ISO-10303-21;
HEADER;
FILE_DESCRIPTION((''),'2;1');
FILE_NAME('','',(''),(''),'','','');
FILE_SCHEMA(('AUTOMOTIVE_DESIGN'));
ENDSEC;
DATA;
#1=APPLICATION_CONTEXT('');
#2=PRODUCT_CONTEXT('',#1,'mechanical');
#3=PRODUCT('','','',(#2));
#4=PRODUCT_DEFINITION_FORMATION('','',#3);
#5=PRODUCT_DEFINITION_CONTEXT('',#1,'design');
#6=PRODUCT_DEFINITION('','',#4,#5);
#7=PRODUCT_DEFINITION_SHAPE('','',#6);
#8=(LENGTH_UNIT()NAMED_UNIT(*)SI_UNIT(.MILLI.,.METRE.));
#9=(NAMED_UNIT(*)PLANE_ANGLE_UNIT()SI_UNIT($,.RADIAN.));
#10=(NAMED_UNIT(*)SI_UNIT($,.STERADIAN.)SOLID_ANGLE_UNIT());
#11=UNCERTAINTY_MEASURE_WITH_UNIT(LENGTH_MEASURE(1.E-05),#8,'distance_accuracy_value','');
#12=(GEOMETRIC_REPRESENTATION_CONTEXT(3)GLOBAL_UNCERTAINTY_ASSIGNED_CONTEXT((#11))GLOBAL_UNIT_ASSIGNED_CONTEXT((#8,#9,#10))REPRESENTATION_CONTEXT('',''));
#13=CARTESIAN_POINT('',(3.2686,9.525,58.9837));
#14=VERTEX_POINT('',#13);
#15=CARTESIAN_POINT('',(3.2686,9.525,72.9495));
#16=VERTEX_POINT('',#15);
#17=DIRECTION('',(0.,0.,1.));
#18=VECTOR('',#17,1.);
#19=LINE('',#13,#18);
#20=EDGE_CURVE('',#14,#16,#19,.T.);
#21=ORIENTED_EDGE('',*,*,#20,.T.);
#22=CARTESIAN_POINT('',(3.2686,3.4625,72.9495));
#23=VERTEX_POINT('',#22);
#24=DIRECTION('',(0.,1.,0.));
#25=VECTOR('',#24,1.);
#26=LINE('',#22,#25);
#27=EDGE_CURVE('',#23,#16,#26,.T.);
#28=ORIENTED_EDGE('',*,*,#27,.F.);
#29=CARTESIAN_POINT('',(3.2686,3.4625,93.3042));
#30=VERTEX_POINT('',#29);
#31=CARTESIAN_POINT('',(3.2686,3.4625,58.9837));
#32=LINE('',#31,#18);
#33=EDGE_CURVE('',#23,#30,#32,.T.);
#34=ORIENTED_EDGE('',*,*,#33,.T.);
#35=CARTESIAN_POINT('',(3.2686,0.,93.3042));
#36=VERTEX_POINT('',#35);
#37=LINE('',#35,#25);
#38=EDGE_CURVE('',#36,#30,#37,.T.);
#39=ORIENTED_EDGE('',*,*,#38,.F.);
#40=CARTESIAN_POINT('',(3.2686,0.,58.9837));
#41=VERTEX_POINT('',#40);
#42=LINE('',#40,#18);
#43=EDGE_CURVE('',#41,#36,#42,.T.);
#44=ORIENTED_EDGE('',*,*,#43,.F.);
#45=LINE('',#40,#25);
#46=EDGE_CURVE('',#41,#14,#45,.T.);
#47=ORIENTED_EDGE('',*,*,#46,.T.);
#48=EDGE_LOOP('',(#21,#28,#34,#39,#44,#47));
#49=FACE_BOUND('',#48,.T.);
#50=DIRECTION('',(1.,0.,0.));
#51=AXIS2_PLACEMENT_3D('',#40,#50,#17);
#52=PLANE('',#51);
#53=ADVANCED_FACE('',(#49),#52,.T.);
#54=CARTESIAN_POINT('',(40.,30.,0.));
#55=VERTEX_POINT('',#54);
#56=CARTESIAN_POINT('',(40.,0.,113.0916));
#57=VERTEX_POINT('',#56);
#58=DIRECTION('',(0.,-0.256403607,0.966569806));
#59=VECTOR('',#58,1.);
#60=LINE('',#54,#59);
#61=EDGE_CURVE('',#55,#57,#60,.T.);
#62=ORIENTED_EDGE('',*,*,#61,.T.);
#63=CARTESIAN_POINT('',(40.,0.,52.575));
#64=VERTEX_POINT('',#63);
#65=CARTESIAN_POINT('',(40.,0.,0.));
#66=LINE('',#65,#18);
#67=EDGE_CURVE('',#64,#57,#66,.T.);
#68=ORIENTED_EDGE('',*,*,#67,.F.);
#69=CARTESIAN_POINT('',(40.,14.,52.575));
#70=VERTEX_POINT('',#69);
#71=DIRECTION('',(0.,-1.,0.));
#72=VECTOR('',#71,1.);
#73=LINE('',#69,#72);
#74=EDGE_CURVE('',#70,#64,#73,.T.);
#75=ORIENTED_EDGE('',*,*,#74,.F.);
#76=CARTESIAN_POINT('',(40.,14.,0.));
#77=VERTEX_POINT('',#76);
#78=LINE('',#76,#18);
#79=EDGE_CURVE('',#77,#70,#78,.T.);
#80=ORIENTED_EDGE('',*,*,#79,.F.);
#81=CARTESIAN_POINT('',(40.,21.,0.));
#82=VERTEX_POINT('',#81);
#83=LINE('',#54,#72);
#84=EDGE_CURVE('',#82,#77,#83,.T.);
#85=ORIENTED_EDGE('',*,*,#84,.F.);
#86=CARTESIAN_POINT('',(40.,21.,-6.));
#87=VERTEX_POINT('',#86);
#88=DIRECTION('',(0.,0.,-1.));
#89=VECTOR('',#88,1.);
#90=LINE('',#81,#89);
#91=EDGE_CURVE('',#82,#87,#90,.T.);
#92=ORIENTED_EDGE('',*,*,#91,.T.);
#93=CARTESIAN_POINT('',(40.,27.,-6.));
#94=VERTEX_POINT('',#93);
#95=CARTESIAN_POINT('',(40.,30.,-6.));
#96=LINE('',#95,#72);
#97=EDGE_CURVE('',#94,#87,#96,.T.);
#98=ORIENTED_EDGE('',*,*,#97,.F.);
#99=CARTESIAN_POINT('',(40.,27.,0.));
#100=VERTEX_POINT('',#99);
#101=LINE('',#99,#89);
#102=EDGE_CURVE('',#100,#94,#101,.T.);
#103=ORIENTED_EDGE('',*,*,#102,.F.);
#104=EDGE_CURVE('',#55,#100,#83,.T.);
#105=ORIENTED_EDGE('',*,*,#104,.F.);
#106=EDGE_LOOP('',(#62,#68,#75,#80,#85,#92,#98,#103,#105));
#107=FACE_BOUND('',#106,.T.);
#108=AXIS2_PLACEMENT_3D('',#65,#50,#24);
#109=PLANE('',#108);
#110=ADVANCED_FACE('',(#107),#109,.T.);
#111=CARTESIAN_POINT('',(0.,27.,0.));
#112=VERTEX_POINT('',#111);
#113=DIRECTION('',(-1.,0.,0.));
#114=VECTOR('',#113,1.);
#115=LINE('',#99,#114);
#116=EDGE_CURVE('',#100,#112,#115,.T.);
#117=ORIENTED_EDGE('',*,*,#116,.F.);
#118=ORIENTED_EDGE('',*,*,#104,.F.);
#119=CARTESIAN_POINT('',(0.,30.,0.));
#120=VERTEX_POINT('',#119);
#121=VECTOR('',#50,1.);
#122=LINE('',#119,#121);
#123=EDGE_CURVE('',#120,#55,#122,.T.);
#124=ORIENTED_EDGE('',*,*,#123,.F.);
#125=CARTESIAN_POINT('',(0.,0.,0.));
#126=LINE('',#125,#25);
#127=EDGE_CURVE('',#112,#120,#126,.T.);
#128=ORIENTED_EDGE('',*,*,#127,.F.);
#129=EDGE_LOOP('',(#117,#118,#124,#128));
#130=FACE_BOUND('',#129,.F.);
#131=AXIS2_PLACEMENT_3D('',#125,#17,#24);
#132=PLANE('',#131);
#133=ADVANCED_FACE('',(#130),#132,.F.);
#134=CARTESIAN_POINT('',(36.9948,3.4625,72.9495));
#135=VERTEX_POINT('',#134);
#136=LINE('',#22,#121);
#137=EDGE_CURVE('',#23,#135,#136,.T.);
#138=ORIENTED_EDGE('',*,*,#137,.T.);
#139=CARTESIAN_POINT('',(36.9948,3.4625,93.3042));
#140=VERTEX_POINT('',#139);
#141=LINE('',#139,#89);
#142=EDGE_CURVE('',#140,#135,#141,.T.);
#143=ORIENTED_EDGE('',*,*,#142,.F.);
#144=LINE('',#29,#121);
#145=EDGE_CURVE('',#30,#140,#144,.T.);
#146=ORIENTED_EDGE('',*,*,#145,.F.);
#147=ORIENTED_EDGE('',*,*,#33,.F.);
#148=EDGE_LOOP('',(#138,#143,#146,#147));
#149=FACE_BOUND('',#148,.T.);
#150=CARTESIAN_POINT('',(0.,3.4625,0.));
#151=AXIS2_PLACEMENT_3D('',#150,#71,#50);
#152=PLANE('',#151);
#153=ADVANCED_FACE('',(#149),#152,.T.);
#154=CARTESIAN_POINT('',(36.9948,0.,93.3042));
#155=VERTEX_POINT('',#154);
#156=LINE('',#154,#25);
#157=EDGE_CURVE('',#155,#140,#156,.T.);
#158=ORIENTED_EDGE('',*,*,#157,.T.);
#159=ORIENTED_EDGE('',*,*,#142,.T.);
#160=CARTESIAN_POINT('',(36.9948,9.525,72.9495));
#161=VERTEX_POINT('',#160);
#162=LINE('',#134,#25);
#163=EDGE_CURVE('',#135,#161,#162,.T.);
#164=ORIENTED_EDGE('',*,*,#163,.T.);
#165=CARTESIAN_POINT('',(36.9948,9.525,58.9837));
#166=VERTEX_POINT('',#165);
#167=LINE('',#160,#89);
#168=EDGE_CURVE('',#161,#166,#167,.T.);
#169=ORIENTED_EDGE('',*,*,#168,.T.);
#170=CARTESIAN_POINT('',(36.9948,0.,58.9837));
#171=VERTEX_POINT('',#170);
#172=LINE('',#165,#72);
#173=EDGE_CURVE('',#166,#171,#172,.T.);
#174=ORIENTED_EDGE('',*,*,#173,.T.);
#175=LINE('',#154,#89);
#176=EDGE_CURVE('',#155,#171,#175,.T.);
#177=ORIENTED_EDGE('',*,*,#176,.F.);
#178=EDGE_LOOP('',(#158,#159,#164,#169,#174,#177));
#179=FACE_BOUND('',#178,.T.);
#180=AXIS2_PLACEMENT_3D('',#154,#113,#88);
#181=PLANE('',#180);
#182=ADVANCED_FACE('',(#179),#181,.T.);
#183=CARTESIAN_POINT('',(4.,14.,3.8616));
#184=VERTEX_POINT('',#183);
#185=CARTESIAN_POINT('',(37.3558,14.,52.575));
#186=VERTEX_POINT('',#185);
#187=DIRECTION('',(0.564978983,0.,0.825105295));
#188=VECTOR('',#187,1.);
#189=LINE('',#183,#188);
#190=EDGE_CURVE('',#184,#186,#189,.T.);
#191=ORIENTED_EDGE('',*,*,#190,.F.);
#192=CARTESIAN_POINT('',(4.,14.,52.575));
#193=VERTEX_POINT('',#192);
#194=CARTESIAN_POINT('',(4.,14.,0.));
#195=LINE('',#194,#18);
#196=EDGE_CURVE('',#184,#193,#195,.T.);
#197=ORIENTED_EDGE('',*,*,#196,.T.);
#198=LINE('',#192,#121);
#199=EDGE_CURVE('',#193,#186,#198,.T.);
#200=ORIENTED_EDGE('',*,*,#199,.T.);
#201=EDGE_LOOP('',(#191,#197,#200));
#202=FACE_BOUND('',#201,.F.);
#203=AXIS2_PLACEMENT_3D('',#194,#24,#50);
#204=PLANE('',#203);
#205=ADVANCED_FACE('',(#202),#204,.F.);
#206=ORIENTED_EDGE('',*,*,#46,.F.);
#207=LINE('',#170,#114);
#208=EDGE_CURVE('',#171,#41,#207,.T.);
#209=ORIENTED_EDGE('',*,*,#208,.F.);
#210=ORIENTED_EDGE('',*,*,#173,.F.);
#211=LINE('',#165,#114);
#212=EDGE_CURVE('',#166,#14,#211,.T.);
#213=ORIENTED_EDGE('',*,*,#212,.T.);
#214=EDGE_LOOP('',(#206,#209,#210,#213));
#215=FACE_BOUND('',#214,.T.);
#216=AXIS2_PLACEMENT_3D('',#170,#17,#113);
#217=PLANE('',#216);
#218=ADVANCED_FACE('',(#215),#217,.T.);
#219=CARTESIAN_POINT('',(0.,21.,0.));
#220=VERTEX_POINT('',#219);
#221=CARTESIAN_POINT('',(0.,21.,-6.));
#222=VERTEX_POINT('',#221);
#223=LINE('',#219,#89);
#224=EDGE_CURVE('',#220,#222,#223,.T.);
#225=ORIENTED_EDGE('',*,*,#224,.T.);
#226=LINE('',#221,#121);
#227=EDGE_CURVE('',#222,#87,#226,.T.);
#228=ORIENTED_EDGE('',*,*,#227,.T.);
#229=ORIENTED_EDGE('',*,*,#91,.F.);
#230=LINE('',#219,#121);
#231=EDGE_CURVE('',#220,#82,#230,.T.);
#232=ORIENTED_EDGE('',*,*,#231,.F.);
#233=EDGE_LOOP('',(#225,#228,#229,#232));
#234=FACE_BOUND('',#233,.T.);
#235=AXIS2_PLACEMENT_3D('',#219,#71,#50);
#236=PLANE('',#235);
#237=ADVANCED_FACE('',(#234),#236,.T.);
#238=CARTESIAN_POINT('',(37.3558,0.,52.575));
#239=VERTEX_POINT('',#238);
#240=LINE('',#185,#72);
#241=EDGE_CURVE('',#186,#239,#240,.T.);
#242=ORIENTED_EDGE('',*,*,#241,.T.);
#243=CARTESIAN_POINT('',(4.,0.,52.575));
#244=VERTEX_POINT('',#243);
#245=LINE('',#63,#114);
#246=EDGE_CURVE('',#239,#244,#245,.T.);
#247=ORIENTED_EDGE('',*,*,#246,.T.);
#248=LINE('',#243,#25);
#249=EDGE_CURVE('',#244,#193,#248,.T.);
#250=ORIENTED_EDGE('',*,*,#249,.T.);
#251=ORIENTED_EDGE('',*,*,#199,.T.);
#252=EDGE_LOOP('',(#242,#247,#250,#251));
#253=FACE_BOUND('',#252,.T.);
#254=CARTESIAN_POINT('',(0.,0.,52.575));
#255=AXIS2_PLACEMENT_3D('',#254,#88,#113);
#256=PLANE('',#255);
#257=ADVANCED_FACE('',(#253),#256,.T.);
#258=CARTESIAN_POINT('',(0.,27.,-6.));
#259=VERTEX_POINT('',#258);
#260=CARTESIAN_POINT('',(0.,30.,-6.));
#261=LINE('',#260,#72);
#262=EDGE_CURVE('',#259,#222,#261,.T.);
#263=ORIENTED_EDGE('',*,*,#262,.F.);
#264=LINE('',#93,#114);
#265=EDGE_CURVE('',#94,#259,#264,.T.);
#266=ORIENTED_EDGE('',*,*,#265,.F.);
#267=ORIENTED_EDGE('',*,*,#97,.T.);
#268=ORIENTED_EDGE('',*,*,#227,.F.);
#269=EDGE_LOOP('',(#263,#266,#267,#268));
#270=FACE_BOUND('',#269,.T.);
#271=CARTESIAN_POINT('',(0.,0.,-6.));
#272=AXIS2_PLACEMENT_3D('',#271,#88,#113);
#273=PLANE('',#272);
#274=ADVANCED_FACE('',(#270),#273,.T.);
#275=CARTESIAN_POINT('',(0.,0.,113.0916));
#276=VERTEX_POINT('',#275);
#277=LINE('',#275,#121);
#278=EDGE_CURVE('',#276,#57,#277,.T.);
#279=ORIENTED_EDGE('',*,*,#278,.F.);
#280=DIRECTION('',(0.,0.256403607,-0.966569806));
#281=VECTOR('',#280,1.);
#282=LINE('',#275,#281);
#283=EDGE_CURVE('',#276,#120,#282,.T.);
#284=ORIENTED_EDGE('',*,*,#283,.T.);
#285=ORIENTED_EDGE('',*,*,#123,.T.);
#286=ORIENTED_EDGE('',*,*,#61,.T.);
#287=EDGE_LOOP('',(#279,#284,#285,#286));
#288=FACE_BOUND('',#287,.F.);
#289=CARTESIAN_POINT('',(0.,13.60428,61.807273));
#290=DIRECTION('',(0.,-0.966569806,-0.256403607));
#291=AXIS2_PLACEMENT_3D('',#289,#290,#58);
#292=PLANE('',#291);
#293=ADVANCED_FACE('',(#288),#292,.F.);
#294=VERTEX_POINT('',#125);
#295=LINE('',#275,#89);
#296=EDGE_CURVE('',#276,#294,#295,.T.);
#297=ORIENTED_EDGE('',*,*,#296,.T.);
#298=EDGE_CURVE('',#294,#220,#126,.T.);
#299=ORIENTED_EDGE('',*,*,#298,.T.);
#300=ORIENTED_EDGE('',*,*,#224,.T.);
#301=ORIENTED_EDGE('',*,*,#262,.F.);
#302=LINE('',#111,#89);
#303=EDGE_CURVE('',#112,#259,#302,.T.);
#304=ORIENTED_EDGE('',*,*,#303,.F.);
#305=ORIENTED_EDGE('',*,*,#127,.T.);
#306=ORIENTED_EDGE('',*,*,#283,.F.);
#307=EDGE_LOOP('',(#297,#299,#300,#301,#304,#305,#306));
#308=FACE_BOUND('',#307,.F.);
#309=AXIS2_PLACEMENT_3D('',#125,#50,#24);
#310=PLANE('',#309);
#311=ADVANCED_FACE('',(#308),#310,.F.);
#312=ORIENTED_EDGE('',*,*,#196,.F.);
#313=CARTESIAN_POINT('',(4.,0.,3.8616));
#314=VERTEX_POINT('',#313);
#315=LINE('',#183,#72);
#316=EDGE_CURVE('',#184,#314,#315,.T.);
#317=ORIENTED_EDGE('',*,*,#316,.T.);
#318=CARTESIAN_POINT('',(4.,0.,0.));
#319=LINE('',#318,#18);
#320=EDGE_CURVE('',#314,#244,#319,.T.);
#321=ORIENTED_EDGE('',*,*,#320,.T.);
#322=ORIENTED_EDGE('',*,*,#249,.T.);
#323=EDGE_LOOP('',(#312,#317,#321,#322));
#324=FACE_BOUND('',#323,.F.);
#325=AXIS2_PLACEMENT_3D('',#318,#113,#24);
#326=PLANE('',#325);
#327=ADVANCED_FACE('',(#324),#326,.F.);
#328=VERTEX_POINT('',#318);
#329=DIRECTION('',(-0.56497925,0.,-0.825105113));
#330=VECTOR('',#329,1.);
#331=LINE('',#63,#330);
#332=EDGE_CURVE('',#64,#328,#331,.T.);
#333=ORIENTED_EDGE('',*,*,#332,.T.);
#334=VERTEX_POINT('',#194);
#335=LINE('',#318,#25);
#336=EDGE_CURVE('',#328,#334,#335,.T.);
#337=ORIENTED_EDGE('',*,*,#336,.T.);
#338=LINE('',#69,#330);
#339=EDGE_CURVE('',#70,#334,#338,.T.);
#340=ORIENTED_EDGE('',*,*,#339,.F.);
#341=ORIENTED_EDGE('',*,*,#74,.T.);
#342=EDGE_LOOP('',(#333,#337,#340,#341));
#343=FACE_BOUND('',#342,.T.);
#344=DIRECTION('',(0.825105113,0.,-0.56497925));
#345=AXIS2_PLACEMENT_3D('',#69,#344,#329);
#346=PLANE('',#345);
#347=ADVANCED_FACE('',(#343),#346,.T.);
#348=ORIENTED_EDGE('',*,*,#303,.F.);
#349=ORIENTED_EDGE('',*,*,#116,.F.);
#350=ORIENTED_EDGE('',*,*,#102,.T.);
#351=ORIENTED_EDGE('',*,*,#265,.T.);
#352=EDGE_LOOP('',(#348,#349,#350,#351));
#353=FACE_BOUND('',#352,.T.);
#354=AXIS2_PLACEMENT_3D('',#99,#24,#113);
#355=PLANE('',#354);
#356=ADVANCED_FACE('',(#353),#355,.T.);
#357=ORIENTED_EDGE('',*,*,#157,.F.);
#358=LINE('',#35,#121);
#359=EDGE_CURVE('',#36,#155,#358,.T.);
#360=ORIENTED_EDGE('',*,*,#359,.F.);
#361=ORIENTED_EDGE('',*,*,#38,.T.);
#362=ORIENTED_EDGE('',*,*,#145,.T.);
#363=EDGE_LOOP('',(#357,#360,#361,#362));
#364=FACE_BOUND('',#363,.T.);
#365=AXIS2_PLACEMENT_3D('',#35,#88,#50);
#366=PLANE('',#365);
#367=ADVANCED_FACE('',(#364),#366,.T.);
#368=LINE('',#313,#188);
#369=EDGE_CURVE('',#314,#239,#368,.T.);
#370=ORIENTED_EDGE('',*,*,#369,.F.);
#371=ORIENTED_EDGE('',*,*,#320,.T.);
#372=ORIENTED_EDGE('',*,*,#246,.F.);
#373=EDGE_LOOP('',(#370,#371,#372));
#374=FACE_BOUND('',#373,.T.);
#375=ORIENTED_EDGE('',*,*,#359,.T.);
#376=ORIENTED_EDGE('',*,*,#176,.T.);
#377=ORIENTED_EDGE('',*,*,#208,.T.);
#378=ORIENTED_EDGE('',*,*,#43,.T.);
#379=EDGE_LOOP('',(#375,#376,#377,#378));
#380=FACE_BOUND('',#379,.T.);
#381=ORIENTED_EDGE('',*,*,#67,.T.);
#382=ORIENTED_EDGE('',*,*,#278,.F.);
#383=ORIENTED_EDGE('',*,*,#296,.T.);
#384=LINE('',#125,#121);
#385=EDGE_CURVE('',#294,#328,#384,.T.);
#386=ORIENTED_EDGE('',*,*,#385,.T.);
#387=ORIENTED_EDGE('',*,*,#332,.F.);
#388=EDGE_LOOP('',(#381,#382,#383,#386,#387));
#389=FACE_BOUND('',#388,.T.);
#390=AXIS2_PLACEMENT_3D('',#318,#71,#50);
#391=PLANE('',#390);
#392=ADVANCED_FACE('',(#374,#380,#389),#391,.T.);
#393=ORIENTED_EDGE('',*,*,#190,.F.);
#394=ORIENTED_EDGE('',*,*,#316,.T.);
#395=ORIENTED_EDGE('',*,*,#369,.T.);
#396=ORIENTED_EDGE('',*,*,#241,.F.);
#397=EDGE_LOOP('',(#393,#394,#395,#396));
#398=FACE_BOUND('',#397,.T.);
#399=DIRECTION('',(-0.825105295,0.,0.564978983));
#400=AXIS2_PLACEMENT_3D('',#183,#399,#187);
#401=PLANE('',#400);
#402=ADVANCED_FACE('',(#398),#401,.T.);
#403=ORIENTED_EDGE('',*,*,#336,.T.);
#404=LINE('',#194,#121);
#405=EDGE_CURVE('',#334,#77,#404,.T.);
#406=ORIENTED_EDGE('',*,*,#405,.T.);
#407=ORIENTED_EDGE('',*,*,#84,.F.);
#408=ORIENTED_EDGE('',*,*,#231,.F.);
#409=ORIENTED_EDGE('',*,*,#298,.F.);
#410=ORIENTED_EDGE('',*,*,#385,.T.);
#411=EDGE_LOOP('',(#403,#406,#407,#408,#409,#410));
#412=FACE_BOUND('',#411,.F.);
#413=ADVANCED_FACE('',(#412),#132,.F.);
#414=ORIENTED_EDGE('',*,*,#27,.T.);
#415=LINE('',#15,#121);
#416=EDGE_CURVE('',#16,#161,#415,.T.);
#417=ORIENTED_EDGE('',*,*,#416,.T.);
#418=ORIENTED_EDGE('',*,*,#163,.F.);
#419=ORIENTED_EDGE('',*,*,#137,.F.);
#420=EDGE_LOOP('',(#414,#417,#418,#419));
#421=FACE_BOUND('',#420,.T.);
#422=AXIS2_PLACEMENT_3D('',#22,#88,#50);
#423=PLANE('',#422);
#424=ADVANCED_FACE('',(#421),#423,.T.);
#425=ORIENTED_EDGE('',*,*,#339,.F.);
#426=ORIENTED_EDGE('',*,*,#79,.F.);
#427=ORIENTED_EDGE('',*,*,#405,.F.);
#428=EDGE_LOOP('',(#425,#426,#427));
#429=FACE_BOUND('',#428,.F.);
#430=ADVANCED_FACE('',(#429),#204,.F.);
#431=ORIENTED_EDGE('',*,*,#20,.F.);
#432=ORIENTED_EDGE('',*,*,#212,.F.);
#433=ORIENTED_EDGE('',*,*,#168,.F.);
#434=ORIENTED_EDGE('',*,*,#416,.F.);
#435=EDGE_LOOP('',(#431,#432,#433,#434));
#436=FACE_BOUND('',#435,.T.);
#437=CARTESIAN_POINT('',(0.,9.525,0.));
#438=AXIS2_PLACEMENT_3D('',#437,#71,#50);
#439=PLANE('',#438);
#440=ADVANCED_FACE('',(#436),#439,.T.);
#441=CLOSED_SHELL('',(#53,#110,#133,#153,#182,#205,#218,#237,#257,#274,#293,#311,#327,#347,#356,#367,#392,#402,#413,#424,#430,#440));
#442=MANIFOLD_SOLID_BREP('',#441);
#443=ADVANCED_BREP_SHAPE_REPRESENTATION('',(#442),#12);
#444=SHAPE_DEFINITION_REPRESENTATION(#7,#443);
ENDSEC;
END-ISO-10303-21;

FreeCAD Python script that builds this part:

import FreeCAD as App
import Part
import Sketcher

V = App.Vector
Q = App.Units.Quantity


def add_polygon(sketch, points):
    """Adds a closed chain of lines whose ends are joined by coincident constraints."""
    first, n = sketch.GeometryCount, len(points)
    for a, b in zip(points, points[1:] + points[:1]):
        sketch.addGeometry(Part.LineSegment(App.Vector(*a, 0), App.Vector(*b, 0)), False)
    for i in range(n):
        sketch.addConstraint(Sketcher.Constraint("Coincident", first + i, 2, first + (i + 1) % n, 1))

doc = App.newDocument("Part")
body = doc.addObject("PartDesign::Body", "Body")

sketch1 = body.newObject("Sketcher::SketchObject", "Sketch")
sketch1.AttachmentSupport = (doc.getObject("YZ_Plane"), [""])
sketch1.MapMode = "FlatFace"
add_polygon(sketch1, [(0, 0), (30, 0), (0, 113.0916)])
sketch1.addConstraint(Sketcher.Constraint("Horizontal", 0))
sketch1.addConstraint(Sketcher.Constraint("Vertical", 2))
sketch1.addConstraint(Sketcher.Constraint("Coincident", 2, 2, -1, 1))
sketch1.addConstraint(Sketcher.Constraint("DistanceX", 0, 1, 0, 2, Q("30 mm")))
sketch1.addConstraint(Sketcher.Constraint("Distance", 1, Q("117.003 mm")))
pad1 = body.newObject("PartDesign::Pad", "Pad")
pad1.Profile = sketch1
pad1.Length = 40

sketch2 = body.newObject("Sketcher::SketchObject", "Sketch001")
sketch2.AttachmentSupport = (doc.getObject("XY_Plane"), [""])
sketch2.MapMode = "FlatFace"
add_polygon(sketch2, [(40, 14), (40, 0), (4, 0), (4, 14)])
sketch2.addConstraint(Sketcher.Constraint("Vertical", 0))
sketch2.addConstraint(Sketcher.Constraint("Horizontal", 1))
sketch2.addConstraint(Sketcher.Constraint("Vertical", 2))
sketch2.addConstraint(Sketcher.Constraint("Horizontal", 3))
sketch2.addConstraint(Sketcher.Constraint("PointOnObject", 0, 2, -1))
sketch2.addConstraint(Sketcher.Constraint("DistanceX", 1, 2, 1, 1, Q("36 mm")))
sketch2.addConstraint(Sketcher.Constraint("DistanceY", 0, 2, 0, 1, Q("14 mm")))
sketch2.addConstraint(Sketcher.Constraint("DistanceX", -1, 1, 0, 2, Q("40 mm")))
pocket1 = body.newObject("PartDesign::Pocket", "Pocket")
pocket1.Profile = sketch2
pocket1.Length = 52.575
pocket1.Reversed = True

sketch3 = body.newObject("Sketcher::SketchObject", "Sketch002")
sketch3.AttachmentSupport = (doc.getObject("XZ_Plane"), [""])
sketch3.MapMode = "FlatFace"
sketch3.AttachmentOffset = App.Placement(V(0, 0, -14), App.Rotation())
add_polygon(sketch3, [(4, 3.8616), (4, 0), (40, 52.575), (37.3558, 52.575)])
sketch3.addConstraint(Sketcher.Constraint("Vertical", 0))
sketch3.addConstraint(Sketcher.Constraint("Horizontal", 2))
sketch3.addConstraint(Sketcher.Constraint("PointOnObject", 0, 2, -1))
sketch3.addConstraint(Sketcher.Constraint("Parallel", 1, 3))
sketch3.addConstraint(Sketcher.Constraint("DistanceX", -1, 1, 0, 2, Q("4 mm")))
sketch3.addConstraint(Sketcher.Constraint("DistanceX", -1, 1, 1, 2, Q("40 mm")))
sketch3.addConstraint(Sketcher.Constraint("Angle", 1, Q("55.5991 deg")))
sketch3.addConstraint(Sketcher.Constraint("Distance", 3, Q("59.039 mm")))
pad2 = body.newObject("PartDesign::Pad", "Pad001")
pad2.Profile = sketch3
pad2.Length = 14

sketch4 = body.newObject("Sketcher::SketchObject", "Sketch003")
sketch4.AttachmentSupport = (doc.getObject("XZ_Plane"), [""])
sketch4.MapMode = "FlatFace"
add_polygon(sketch4, [(3.2686, 58.9837), (36.9948, 58.9837), (36.9948, 93.3042), (3.2686, 93.3042)])
sketch4.addConstraint(Sketcher.Constraint("Horizontal", 0))
sketch4.addConstraint(Sketcher.Constraint("Vertical", 1))
sketch4.addConstraint(Sketcher.Constraint("Horizontal", 2))
sketch4.addConstraint(Sketcher.Constraint("Vertical", 3))
sketch4.addConstraint(Sketcher.Constraint("DistanceX", 0, 1, 0, 2, Q("33.7262 mm")))
sketch4.addConstraint(Sketcher.Constraint("DistanceY", 1, 1, 1, 2, Q("34.3205 mm")))
sketch4.addConstraint(Sketcher.Constraint("DistanceX", -1, 1, 0, 2, Q("36.9948 mm")))
sketch4.addConstraint(Sketcher.Constraint("DistanceY", -1, 1, 0, 2, Q("58.9837 mm")))
pocket2 = body.newObject("PartDesign::Pocket", "Pocket001")
pocket2.Profile = sketch4
pocket2.Length = 3.4625

sketch5 = body.newObject("Sketcher::SketchObject", "Sketch004")
sketch5.AttachmentSupport = (doc.getObject("XZ_Plane"), [""])
sketch5.MapMode = "FlatFace"
sketch5.AttachmentOffset = App.Placement(V(0, 0, -3.4625), App.Rotation())
add_polygon(sketch5, [(3.2686, 58.9837), (36.9948, 58.9837), (36.9948, 72.9495), (3.2686, 72.9495)])
sketch5.addConstraint(Sketcher.Constraint("Horizontal", 0))
sketch5.addConstraint(Sketcher.Constraint("Vertical", 1))
sketch5.addConstraint(Sketcher.Constraint("Horizontal", 2))
sketch5.addConstraint(Sketcher.Constraint("Vertical", 3))
sketch5.addConstraint(Sketcher.Constraint("DistanceX", 0, 1, 0, 2, Q("33.7262 mm")))
sketch5.addConstraint(Sketcher.Constraint("DistanceY", 1, 1, 1, 2, Q("13.9658 mm")))
sketch5.addConstraint(Sketcher.Constraint("DistanceX", -1, 1, 0, 2, Q("36.9948 mm")))
sketch5.addConstraint(Sketcher.Constraint("DistanceY", -1, 1, 0, 2, Q("58.9837 mm")))
pocket3 = body.newObject("PartDesign::Pocket", "Pocket002")
pocket3.Profile = sketch5
pocket3.Length = 6.0625

sketch6 = body.newObject("Sketcher::SketchObject", "Sketch005")
sketch6.AttachmentSupport = (doc.getObject("XY_Plane"), [""])
sketch6.MapMode = "FlatFace"
add_polygon(sketch6, [(0, 27), (40, 27), (40, 21), (0, 21)])
sketch6.addConstraint(Sketcher.Constraint("Horizontal", 0))
sketch6.addConstraint(Sketcher.Constraint("Vertical", 1))
sketch6.addConstraint(Sketcher.Constraint("Horizontal", 2))
sketch6.addConstraint(Sketcher.Constraint("Vertical", 3))
sketch6.addConstraint(Sketcher.Constraint("PointOnObject", 2, 2, -2))
sketch6.addConstraint(Sketcher.Constraint("DistanceY", 1, 2, 1, 1, Q("6 mm")))
sketch6.addConstraint(Sketcher.Constraint("DistanceX", 0, 1, 0, 2, Q("40 mm")))
sketch6.addConstraint(Sketcher.Constraint("DistanceY", -1, 1, 0, 2, Q("27 mm")))
pad3 = body.newObject("PartDesign::Pad", "Pad002")
pad3.Profile = sketch6
pad3.Length = 6
pad3.Reversed = True

doc.recompute()
